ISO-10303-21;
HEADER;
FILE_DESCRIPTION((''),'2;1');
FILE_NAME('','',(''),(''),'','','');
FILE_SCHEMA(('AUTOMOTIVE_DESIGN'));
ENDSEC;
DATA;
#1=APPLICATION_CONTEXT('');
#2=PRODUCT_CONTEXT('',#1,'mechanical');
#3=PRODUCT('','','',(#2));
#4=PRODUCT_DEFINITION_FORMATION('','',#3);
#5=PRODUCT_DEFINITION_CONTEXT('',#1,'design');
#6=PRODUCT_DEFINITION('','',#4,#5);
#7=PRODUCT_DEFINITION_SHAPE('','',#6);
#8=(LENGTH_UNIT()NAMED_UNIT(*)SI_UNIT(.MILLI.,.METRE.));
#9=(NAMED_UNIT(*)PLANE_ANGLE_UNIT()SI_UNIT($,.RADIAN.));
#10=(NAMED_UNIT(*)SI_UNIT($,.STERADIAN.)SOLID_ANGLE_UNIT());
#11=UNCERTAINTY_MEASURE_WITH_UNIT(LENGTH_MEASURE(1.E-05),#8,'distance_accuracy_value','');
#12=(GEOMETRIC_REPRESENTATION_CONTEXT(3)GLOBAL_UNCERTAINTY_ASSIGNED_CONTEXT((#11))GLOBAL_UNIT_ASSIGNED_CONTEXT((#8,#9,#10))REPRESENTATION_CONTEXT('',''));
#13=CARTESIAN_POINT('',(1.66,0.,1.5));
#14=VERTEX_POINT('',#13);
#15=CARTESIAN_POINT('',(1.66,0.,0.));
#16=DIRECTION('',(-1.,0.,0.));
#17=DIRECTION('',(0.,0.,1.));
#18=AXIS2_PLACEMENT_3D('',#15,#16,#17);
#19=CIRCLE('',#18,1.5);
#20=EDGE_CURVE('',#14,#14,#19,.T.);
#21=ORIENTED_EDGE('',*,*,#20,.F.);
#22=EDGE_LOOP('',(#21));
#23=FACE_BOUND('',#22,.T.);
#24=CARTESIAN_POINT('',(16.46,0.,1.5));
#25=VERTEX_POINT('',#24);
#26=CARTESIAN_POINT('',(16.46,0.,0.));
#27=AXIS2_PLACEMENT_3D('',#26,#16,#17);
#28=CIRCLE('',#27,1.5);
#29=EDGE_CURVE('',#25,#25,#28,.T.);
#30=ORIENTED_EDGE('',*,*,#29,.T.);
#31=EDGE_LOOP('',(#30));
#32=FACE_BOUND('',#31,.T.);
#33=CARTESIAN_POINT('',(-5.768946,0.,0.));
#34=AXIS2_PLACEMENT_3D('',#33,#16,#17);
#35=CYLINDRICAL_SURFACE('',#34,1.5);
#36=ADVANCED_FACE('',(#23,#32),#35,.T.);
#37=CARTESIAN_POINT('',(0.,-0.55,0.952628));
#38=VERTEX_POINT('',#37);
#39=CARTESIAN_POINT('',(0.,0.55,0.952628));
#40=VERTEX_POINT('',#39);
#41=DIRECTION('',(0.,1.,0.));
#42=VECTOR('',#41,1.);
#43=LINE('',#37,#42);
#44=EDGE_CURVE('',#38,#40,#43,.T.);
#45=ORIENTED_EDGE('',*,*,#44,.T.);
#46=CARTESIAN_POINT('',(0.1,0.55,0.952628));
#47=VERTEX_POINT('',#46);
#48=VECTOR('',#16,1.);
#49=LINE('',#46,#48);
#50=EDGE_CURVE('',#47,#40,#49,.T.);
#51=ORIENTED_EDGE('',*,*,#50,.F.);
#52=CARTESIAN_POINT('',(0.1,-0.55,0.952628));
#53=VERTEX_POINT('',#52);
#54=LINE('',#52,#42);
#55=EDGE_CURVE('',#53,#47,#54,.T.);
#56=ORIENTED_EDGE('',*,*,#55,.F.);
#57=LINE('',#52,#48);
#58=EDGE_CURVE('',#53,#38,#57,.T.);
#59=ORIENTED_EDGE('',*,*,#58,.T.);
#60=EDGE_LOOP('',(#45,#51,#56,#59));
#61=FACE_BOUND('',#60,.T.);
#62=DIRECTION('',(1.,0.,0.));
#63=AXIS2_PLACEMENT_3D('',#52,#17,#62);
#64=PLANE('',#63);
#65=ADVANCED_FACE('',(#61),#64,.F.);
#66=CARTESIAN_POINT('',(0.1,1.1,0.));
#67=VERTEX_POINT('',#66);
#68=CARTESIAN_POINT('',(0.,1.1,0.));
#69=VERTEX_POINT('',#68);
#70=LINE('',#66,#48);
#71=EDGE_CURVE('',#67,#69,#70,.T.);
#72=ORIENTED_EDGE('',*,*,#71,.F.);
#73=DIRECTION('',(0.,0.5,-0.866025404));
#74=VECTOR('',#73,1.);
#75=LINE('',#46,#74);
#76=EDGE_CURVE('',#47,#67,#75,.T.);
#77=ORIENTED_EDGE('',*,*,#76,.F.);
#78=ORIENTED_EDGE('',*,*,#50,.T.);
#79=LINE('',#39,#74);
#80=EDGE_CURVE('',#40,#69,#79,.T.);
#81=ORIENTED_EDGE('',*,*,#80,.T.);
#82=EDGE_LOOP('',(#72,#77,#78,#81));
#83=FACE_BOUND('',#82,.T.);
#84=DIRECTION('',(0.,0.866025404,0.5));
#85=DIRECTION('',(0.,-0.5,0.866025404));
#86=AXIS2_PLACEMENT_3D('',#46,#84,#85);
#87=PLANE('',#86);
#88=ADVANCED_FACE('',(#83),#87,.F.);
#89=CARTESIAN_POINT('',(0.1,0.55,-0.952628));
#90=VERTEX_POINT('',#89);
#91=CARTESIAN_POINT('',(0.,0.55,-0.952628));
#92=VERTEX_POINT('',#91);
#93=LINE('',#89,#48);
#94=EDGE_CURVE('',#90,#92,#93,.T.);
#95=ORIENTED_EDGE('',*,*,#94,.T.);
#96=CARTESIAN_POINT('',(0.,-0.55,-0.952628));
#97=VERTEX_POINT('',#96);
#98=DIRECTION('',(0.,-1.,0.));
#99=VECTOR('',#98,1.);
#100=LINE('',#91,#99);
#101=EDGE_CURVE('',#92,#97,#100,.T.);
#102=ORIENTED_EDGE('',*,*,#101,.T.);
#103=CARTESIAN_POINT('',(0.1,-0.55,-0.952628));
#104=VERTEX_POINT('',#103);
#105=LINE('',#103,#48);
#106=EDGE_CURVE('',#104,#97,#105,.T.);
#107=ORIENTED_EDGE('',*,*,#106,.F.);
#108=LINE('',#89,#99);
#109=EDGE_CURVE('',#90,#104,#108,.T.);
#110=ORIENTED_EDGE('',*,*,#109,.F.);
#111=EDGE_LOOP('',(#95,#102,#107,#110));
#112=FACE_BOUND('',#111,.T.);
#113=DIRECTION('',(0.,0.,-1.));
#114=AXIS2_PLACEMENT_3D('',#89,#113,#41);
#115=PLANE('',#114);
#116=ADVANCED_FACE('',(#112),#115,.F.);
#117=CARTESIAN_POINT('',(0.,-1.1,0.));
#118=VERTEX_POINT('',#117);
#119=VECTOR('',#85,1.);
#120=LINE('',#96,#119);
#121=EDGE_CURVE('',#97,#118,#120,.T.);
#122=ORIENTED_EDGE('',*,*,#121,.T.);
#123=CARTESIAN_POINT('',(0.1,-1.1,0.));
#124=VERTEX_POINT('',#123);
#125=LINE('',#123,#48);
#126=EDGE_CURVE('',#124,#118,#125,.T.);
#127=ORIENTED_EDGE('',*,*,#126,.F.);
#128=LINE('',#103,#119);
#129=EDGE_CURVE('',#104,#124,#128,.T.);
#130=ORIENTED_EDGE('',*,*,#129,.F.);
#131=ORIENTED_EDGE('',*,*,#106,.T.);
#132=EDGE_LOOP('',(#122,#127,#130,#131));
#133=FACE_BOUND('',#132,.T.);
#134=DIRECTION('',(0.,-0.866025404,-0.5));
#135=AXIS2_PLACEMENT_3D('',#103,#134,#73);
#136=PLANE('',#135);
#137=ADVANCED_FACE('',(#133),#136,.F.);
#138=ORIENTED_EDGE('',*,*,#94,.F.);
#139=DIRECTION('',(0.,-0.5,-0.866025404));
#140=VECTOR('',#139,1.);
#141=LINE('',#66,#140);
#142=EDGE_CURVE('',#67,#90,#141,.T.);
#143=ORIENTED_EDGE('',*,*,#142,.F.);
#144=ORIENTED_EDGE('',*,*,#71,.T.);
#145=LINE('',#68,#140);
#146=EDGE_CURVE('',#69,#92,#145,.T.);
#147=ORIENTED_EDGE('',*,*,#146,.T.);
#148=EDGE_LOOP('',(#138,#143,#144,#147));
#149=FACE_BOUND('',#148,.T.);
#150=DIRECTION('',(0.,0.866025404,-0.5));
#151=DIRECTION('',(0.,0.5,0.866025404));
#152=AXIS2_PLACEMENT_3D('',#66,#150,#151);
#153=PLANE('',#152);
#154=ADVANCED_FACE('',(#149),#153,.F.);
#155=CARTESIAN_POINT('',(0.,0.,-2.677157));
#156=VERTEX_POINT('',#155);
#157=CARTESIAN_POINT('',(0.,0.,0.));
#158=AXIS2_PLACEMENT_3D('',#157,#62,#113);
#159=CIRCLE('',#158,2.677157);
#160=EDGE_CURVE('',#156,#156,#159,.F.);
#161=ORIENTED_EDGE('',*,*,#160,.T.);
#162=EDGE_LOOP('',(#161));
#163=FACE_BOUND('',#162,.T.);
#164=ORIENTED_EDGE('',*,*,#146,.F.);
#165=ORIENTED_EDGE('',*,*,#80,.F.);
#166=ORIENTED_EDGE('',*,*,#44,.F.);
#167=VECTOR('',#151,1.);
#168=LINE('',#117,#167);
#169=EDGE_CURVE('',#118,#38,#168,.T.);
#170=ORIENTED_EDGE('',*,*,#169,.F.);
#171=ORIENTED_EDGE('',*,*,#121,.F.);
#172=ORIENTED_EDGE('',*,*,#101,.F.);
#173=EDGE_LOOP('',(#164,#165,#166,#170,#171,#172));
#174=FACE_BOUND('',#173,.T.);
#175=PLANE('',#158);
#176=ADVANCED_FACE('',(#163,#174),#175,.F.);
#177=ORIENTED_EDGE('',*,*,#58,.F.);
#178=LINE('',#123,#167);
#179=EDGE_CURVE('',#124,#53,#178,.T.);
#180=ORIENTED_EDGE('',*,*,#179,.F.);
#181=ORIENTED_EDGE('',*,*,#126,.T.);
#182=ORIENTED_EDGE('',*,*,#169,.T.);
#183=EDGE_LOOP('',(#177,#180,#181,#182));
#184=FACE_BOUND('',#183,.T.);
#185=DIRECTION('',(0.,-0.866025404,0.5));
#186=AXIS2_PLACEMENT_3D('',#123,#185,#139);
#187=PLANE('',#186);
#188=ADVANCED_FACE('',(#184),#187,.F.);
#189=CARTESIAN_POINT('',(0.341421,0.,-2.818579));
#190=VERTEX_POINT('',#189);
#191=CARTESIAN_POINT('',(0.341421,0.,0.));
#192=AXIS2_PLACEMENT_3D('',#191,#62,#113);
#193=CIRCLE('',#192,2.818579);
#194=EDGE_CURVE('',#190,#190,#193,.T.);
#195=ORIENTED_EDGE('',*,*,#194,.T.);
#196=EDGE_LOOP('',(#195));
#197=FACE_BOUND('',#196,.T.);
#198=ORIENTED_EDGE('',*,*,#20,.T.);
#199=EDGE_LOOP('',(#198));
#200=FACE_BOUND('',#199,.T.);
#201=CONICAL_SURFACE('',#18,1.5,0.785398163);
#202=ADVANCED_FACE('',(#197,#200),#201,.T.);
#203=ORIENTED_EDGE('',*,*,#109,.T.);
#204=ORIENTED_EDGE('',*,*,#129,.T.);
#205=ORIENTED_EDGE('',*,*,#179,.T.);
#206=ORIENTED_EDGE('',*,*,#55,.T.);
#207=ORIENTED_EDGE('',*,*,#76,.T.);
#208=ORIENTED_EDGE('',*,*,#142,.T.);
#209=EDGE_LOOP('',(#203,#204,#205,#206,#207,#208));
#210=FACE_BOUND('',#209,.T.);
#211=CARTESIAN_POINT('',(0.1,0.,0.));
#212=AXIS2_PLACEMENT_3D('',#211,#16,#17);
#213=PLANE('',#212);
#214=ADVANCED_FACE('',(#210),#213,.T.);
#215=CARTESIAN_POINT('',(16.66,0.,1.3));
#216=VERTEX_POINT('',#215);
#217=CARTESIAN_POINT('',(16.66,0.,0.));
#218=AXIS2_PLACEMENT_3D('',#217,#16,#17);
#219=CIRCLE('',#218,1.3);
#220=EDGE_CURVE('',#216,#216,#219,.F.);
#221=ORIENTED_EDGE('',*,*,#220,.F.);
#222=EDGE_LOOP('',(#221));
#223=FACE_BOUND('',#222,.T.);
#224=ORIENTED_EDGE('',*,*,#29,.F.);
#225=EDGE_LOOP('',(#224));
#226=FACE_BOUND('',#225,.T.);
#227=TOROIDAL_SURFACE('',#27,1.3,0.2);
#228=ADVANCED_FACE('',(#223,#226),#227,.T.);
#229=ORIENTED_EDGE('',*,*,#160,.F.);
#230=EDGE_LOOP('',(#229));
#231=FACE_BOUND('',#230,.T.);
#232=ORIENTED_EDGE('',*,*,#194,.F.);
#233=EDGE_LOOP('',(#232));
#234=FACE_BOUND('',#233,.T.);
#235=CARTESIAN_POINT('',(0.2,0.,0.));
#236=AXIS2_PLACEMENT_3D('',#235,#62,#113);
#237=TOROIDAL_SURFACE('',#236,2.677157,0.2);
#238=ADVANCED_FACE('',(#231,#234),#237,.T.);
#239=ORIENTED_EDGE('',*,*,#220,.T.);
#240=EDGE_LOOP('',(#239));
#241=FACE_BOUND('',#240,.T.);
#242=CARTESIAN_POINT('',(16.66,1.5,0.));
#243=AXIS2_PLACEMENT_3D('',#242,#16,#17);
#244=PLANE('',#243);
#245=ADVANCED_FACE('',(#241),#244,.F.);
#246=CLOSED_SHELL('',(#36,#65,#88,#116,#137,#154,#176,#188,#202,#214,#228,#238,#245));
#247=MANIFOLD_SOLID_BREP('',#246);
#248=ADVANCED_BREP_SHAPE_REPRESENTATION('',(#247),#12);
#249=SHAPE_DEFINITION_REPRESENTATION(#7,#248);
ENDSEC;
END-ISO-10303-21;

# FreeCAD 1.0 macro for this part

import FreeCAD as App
import Part
import Sketcher
Q = App.Units.Quantity


def edges_at(feature, points):
    """Names of the edges that pass closest to the given points."""
    edges = feature.Shape.Edges
    near = lambda p: min(range(len(edges)), key=lambda i: edges[i].distToShape(Part.Vertex(*p))[0])
    return sorted({f"Edge{near(p) + 1}" for p in points})


def add_polygon(sketch, points):
    """Adds a closed chain of lines whose ends are joined by coincident constraints."""
    first, n = sketch.GeometryCount, len(points)
    for a, b in zip(points, points[1:] + points[:1]):
        sketch.addGeometry(Part.LineSegment(App.Vector(*a, 0), App.Vector(*b, 0)), False)
    for i in range(n):
        sketch.addConstraint(Sketcher.Constraint("Coincident", first + i, 2, first + (i + 1) % n, 1))

doc = App.newDocument("Part")
params = doc.addObject("Spreadsheet::Sheet", "Params")
for row, (alias, value) in enumerate([
    ("sketch1_width", "15 mm"),
    ("sketch1_height", "1.5 mm"),
    ("sketch1_width2", "16.66 mm"),
    ("revolution_angle", "360 deg"),
    ("sketch2_width", "1.1 mm"),
    ("sketch2_length", "1.1 mm"),
    ("pocket1_length", "0.1 mm"),
    ("fillet_radius", "0.2 mm"),
], start=1):
    params.set(f"A{row}", alias)
    params.set(f"B{row}", "=" + value)
    params.setAlias(f"B{row}", alias)

body = doc.addObject("PartDesign::Body", "Body")

# Sketch on XY plane
sketch1 = body.newObject("Sketcher::SketchObject", "Sketch")
sketch1.AttachmentSupport = (doc.getObject("XY_Plane"), [""])
sketch1.MapMode = "FlatFace"
add_polygon(sketch1, [(0, 3.2), (0, 0), (16.7, 0), (16.7, 1.5), (1.7, 1.5)])  # lines 0-4
sketch1.addConstraint([
    Sketcher.Constraint("Vertical", 0),
    Sketcher.Constraint("Horizontal", 1),
    Sketcher.Constraint("Vertical", 2),
    Sketcher.Constraint("Horizontal", 3),
    Sketcher.Constraint("Coincident", 0, 2, -1, 1),
    Sketcher.Constraint("DistanceX", 3, 2, 3, 1, 15.0),
    Sketcher.Constraint("Angle", 4, Q("135 deg")),
    Sketcher.Constraint("DistanceY", 2, 1, 2, 2, 1.5),
    Sketcher.Constraint("DistanceX", 1, 1, 1, 2, 16.66),
])
sketch1.setExpression("Constraints[10]", "Params.sketch1_width")
sketch1.setExpression("Constraints[12]", "Params.sketch1_height")
sketch1.setExpression("Constraints[13]", "Params.sketch1_width2")
revolution = body.newObject("PartDesign::Revolution", "Revolution")
revolution.Profile = sketch1
revolution.ReferenceAxis = (sketch1, ["H_Axis"])
revolution.setExpression("Angle", "Params.revolution_angle")

# Sketch on YZ plane
sketch2 = body.newObject("Sketcher::SketchObject", "Sketch001")
sketch2.AttachmentSupport = (doc.getObject("YZ_Plane"), [""])
sketch2.MapMode = "FlatFace"
add_polygon(sketch2, [(-1.1, 0), (-0.6, 1), (0.6, 1), (1.1, 0), (0.6, -1), (-0.6, -1)])  # lines 0-5
sketch2.addConstraint([
    Sketcher.Constraint("Horizontal", 1),
    Sketcher.Constraint("Horizontal", 4),
    Sketcher.Constraint("Symmetric", 0, 2, 3, 2, -1, 1),
    Sketcher.Constraint("Symmetric", 2, 2, 5, 2, -1, 1),
    Sketcher.Constraint("PointOnObject", 2, 2, -1),
    Sketcher.Constraint("Parallel", 2, 5),
    Sketcher.Constraint("Vertical", 1, 2, 3, 2),
    Sketcher.Constraint("Angle", 0, Q("60 deg")),
    Sketcher.Constraint("DistanceX", 1, 1, 1, 2, 1.1),
    Sketcher.Constraint("Distance", 0, 1.1),
])
sketch2.setExpression("Constraints[14]", "Params.sketch2_width")
sketch2.setExpression("Constraints[15]", "Params.sketch2_length")
pocket1 = body.newObject("PartDesign::Pocket", "Pocket")
pocket1.Profile = sketch2
pocket1.setExpression("Length", "Params.pocket1_length")
pocket1.Reversed = True
doc.recompute()

fillet = body.newObject("PartDesign::Fillet", "Fillet")
fillet.Base = (pocket1, edges_at(pocket1, [(16.66, 0, -1.5), (0, 0, -3.16)]))
fillet.setExpression("Radius", "Params.fillet_radius")

doc.recompute()
